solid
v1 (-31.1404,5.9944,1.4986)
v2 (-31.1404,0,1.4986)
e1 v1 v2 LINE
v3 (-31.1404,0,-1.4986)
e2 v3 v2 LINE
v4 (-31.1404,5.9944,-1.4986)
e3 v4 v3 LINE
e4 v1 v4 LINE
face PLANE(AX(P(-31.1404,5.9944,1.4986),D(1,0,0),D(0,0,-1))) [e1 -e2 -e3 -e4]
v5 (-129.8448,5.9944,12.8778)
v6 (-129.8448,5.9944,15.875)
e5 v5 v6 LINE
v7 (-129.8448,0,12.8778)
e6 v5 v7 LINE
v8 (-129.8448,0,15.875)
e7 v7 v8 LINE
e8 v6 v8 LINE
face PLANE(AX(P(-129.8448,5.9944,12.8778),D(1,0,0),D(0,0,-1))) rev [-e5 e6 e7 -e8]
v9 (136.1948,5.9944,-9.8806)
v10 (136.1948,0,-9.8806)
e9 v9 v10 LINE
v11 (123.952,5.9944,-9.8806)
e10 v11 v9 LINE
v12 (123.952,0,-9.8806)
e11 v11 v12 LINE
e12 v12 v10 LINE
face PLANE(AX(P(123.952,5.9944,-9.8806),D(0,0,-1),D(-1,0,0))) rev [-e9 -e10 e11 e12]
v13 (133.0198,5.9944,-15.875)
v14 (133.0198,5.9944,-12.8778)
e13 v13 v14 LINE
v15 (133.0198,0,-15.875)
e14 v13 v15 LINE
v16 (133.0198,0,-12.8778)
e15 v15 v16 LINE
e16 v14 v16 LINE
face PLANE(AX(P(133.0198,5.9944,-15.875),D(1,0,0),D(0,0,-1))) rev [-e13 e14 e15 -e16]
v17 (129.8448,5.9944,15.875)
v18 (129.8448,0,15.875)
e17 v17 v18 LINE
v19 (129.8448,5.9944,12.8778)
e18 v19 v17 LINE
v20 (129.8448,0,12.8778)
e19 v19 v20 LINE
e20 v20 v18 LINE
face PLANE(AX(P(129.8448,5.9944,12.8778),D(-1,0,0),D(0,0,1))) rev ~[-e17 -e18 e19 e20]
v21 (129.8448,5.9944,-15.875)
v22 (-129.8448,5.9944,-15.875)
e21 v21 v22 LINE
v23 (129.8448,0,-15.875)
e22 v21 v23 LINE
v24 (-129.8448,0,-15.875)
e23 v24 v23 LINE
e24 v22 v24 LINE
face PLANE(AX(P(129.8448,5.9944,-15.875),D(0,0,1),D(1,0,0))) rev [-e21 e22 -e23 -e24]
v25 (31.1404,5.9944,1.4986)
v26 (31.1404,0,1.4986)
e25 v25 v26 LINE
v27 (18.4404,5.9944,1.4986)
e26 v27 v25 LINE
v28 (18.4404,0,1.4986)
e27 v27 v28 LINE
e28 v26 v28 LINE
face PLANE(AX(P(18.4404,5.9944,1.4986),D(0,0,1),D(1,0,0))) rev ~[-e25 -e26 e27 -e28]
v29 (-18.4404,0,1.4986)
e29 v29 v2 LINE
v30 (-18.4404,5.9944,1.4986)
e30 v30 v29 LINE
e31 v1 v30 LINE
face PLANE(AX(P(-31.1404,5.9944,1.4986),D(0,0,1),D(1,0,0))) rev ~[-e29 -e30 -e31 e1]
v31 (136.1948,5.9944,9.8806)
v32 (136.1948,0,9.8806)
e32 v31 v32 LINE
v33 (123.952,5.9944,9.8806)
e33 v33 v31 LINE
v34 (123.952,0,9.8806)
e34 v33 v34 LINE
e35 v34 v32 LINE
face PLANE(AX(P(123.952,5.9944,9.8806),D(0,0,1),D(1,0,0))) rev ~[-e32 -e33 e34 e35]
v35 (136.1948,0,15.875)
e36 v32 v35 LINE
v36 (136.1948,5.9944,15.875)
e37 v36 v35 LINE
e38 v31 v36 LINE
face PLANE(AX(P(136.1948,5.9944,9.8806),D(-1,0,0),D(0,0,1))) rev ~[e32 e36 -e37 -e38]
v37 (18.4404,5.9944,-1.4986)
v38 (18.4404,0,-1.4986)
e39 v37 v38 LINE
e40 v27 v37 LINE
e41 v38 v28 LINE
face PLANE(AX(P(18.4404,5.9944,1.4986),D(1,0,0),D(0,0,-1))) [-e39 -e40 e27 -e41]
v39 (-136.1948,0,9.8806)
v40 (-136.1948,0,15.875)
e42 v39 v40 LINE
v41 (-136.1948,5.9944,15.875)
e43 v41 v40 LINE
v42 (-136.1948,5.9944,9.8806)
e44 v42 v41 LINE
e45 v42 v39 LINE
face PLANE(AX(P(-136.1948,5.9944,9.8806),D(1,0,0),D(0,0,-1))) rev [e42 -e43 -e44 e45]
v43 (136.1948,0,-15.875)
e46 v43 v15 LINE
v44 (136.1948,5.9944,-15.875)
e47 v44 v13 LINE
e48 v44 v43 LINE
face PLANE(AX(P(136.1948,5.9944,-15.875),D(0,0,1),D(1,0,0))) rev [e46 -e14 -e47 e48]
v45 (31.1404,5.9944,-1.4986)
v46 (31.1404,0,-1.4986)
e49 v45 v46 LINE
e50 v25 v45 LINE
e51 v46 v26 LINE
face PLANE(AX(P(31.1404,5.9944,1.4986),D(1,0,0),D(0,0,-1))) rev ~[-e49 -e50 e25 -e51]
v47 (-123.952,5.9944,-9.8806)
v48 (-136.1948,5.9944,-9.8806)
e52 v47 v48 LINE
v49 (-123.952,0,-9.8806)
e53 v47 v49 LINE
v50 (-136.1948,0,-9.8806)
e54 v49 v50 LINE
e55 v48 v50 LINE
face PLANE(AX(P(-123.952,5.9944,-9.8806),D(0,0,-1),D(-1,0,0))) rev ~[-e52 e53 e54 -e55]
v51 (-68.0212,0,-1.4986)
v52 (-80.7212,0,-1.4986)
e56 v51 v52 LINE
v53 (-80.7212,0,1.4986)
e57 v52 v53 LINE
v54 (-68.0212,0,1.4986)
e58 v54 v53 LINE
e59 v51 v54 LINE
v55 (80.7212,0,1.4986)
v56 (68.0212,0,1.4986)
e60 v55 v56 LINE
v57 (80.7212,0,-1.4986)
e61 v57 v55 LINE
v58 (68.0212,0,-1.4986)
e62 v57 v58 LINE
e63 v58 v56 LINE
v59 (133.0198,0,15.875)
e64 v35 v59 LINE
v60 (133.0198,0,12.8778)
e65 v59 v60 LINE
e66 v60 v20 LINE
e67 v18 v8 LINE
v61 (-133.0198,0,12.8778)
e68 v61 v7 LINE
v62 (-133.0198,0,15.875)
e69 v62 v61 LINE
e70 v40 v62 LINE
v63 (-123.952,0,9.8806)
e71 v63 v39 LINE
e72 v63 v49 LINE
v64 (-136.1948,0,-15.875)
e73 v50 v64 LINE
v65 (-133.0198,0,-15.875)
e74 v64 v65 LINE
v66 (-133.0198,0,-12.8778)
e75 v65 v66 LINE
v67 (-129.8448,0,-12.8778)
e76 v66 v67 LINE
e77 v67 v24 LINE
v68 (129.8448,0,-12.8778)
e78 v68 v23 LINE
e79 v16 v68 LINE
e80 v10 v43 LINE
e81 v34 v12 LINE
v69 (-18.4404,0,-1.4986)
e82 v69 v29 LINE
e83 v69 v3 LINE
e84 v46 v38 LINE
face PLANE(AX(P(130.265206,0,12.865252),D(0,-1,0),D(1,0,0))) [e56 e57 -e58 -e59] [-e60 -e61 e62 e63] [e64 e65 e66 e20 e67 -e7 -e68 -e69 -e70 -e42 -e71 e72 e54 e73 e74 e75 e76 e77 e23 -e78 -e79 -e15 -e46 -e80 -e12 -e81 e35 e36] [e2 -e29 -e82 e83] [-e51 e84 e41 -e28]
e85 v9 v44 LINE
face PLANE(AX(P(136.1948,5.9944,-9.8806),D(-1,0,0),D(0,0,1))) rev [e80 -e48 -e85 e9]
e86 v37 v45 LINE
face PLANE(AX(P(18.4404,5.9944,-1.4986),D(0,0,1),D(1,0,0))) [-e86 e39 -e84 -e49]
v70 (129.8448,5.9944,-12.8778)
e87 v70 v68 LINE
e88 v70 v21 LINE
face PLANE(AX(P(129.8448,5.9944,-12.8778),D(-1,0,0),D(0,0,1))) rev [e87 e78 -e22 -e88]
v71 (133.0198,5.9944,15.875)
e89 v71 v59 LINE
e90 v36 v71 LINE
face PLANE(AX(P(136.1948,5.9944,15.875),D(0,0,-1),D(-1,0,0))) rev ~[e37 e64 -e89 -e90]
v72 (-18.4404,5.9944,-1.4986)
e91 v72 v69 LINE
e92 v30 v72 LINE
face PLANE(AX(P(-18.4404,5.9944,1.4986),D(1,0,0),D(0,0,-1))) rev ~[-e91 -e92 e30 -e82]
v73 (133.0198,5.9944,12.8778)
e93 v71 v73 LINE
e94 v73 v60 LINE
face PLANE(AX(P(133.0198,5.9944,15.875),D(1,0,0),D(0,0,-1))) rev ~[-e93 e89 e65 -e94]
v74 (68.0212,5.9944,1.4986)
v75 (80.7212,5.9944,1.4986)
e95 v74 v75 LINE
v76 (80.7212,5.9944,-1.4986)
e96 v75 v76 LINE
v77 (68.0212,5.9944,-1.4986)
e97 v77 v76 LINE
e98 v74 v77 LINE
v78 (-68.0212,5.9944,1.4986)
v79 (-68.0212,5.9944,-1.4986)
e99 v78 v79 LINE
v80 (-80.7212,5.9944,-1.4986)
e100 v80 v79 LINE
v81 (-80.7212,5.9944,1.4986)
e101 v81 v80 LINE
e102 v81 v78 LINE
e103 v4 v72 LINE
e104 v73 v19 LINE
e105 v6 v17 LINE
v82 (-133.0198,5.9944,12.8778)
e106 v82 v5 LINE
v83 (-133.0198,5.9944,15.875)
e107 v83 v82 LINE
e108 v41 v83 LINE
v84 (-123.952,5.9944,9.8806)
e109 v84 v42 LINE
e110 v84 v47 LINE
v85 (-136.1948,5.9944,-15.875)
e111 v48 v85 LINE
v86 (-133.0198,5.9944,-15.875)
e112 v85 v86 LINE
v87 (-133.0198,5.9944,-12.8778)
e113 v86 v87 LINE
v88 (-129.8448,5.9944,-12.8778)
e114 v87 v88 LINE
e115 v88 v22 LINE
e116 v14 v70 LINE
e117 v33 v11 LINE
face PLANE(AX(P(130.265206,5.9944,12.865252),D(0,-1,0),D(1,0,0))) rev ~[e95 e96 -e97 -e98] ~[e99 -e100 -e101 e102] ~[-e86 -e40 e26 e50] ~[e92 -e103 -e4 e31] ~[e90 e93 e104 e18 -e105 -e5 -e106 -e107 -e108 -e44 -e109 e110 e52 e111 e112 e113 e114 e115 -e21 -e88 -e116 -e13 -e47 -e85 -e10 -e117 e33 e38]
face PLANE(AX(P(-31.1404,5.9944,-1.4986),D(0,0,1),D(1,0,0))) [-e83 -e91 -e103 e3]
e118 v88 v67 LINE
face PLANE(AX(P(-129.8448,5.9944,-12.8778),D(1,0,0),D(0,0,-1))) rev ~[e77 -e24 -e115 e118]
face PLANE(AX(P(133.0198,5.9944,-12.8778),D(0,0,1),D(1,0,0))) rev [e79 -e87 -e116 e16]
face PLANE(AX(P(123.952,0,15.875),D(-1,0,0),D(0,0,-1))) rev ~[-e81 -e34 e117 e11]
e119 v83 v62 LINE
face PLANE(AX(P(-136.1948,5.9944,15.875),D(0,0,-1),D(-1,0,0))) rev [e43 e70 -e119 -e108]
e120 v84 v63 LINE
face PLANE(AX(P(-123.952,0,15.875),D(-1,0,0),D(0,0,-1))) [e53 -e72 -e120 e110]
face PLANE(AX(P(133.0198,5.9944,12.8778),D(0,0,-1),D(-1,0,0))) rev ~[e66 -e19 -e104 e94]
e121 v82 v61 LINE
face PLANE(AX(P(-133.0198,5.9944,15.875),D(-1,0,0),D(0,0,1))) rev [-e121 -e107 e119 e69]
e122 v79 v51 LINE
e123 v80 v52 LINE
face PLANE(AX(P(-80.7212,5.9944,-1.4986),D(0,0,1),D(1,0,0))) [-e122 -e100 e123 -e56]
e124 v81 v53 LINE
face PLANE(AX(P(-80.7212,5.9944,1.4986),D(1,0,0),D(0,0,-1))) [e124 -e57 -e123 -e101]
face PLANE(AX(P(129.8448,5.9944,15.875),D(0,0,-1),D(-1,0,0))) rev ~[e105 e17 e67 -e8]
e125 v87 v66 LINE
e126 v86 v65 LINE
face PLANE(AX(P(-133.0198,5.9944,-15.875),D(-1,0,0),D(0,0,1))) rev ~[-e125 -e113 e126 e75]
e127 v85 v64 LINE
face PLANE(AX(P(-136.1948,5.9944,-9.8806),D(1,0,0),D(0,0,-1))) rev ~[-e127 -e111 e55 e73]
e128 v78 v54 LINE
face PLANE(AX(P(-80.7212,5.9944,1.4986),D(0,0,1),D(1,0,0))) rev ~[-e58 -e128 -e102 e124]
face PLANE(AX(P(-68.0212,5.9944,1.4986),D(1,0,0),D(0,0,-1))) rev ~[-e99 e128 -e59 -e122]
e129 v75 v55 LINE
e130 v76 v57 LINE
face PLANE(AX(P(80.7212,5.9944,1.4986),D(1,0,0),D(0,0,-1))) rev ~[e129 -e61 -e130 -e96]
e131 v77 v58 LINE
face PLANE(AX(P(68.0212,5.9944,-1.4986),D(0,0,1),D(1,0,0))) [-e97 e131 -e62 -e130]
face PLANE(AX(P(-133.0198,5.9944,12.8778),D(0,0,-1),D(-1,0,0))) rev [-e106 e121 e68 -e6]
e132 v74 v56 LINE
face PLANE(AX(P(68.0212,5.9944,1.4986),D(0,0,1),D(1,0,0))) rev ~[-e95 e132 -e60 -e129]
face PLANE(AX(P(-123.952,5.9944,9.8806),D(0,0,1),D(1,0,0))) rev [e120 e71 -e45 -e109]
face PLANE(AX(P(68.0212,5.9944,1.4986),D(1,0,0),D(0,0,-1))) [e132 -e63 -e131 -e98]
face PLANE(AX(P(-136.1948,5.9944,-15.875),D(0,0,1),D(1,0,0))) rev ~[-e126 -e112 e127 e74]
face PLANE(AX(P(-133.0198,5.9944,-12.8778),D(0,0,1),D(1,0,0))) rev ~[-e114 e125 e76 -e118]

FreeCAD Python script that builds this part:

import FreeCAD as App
import Part
import Sketcher

V = App.Vector
Q = App.Units.Quantity


def add_polygon(sketch, points):
    """Adds a closed chain of lines whose ends are joined by coincident constraints."""
    first, n = sketch.GeometryCount, len(points)
    for a, b in zip(points, points[1:] + points[:1]):
        sketch.addGeometry(Part.LineSegment(App.Vector(*a, 0), App.Vector(*b, 0)), False)
    for i in range(n):
        sketch.addConstraint(Sketcher.Constraint("Coincident", first + i, 2, first + (i + 1) % n, 1))

doc = App.newDocument("Part")
body = doc.addObject("PartDesign::Body", "Body")

# Sketch on XZ plane
sketch1 = body.newObject("Sketcher::SketchObject", "Sketch")
sketch1.AttachmentSupport = (doc.getObject("XZ_Plane"), [""])
sketch1.MapMode = "FlatFace"
add_polygon(sketch1, [(-123.952, -15.875), (-123.952, 15.875), (123.952, 15.875), (123.952, -15.875)])  # lines 0-3
sketch1.addConstraint(Sketcher.Constraint("Vertical", 0))
sketch1.addConstraint(Sketcher.Constraint("Horizontal", 1))
sketch1.addConstraint(Sketcher.Constraint("Vertical", 2))
sketch1.addConstraint(Sketcher.Constraint("Horizontal", 3))
sketch1.addConstraint(Sketcher.Constraint("Symmetric", 0, 2, 2, 2, -1, 1))
sketch1.addConstraint(Sketcher.Constraint("DistanceX", 1, 1, 1, 2, Q("9.76 in")))
sketch1.addConstraint(Sketcher.Constraint("DistanceY", 0, 1, 0, 2, Q("1.25 in")))
pad1 = body.newObject("PartDesign::Pad", "Pad")
pad1.Profile = sketch1
pad1.Length = Q("0.236 in")
pad1.Reversed = True

# Sketch on XZ plane
sketch2 = body.newObject("Sketcher::SketchObject", "Sketch001")
sketch2.AttachmentSupport = (doc.getObject("XZ_Plane"), [""])
sketch2.MapMode = "FlatFace"
sketch2.AttachmentOffset = App.Placement(V(0, 0, -0.236 * 25.4), App.Rotation())
add_polygon(sketch2, [(-136.1948, -9.8806), (-123.952, -9.8806), (-123.952, -15.875), (-129.8448, -15.875), (-129.8448, -12.8778), (-133.0198, -12.8778), (-133.0198, -15.875), (-136.1948, -15.875)])  # lines 0-7
sketch2.addConstraint(Sketcher.Constraint("Horizontal", 0))
sketch2.addConstraint(Sketcher.Constraint("Vertical", 1))
sketch2.addConstraint(Sketcher.Constraint("Horizontal", 2))
sketch2.addConstraint(Sketcher.Constraint("Vertical", 3))
sketch2.addConstraint(Sketcher.Constraint("Horizontal", 4))
sketch2.addConstraint(Sketcher.Constraint("Vertical", 5))
sketch2.addConstraint(Sketcher.Constraint("Horizontal", 6))
sketch2.addConstraint(Sketcher.Constraint("Vertical", 7))
sketch2.addConstraint(Sketcher.Constraint("Horizontal", 2, 2, 5, 2))
sketch2.addConstraint(Sketcher.Constraint("Equal", 4, 6))
sketch2.addConstraint(Sketcher.Constraint("DistanceX", 0, 1, 0, 2, Q("0.482 in")))
sketch2.addConstraint(Sketcher.Constraint("DistanceX", 2, 2, 2, 1, Q("0.232 in")))
sketch2.addConstraint(Sketcher.Constraint("DistanceY", 1, 2, 1, 1, Q("0.236 in")))
sketch2.addConstraint(Sketcher.Constraint("DistanceY", 3, 1, 3, 2, Q("0.118 in")))
sketch2.addConstraint(Sketcher.Constraint("DistanceX", 0, 2, -1, 1, Q("4.88 in")))
sketch2.addConstraint(Sketcher.Constraint("DistanceY", 0, 2, -1, 1, Q("0.389 in")))
pad2 = body.newObject("PartDesign::Pad", "Pad001")
pad2.Profile = sketch2
pad2.Length = Q("0.236 in")
doc.recompute()

mirrored = body.newObject("PartDesign::Mirrored", "Mirrored")
mirrored.Originals = [pad2]
mirrored.MirrorPlane = (doc.getObject("XY_Plane"), [""])
body.Tip = mirrored
doc.recompute()

mirrored2 = body.newObject("PartDesign::Mirrored", "Mirrored001")
mirrored2.Originals = [pad2]
mirrored2.MirrorPlane = (doc.getObject("YZ_Plane"), [""])
body.Tip = mirrored2

# Sketch on XZ plane
sketch3 = body.newObject("Sketcher::SketchObject", "Sketch002")
sketch3.AttachmentSupport = (doc.getObject("XZ_Plane"), [""])
sketch3.MapMode = "FlatFace"
sketch3.AttachmentOffset = App.Placement(V(0, 0, -0.236 * 25.4), App.Rotation())
add_polygon(sketch3, [(136.1948, 9.8806), (123.952, 9.8806), (123.952, 15.875), (129.8448, 15.875), (129.8448, 12.8778), (133.0198, 12.8778), (133.0198, 15.875), (136.1948, 15.875)])  # lines 0-7
sketch3.addConstraint(Sketcher.Constraint("Horizontal", 0))
sketch3.addConstraint(Sketcher.Constraint("Vertical", 1))
sketch3.addConstraint(Sketcher.Constraint("Horizontal", 2))
sketch3.addConstraint(Sketcher.Constraint("Vertical", 3))
sketch3.addConstraint(Sketcher.Constraint("Horizontal", 4))
sketch3.addConstraint(Sketcher.Constraint("Vertical", 5))
sketch3.addConstraint(Sketcher.Constraint("Horizontal", 6))
sketch3.addConstraint(Sketcher.Constraint("Vertical", 7))
sketch3.addConstraint(Sketcher.Constraint("Horizontal", 2, 2, 5, 2))
sketch3.addConstraint(Sketcher.Constraint("Equal", 4, 6))
sketch3.addConstraint(Sketcher.Constraint("DistanceX", 0, 2, 0, 1, Q("0.482 in")))
sketch3.addConstraint(Sketcher.Constraint("DistanceX", 2, 1, 2, 2, Q("0.232 in")))
sketch3.addConstraint(Sketcher.Constraint("DistanceY", 1, 1, 1, 2, Q("0.236 in")))
sketch3.addConstraint(Sketcher.Constraint("DistanceY", 3, 2, 3, 1, Q("0.118 in")))
sketch3.addConstraint(Sketcher.Constraint("DistanceX", -1, 1, 0, 2, Q("4.88 in")))
sketch3.addConstraint(Sketcher.Constraint("DistanceY", -1, 1, 0, 2, Q("0.389 in")))
pad3 = body.newObject("PartDesign::Pad", "Pad002")
pad3.Profile = sketch3
pad3.Length = Q("0.236 in")

# Sketch on XZ plane
sketch4 = body.newObject("Sketcher::SketchObject", "Sketch003")
sketch4.AttachmentSupport = (doc.getObject("XZ_Plane"), [""])
sketch4.MapMode = "FlatFace"
sketch4.AttachmentOffset = App.Placement(V(0, 0, -0.236 * 25.4), App.Rotation())
add_polygon(sketch4, [(-80.7212, -1.4986), (-80.7212, 1.4986), (-68.0212, 1.4986), (-68.0212, -1.4986)])  # lines 0-3
add_polygon(sketch4, [(-31.1404, -1.4986), (-31.1404, 1.4986), (-18.4404, 1.4986), (-18.4404, -1.4986)])  # lines 4-7
add_polygon(sketch4, [(18.4404, -1.4986), (18.4404, 1.4986), (31.1404, 1.4986), (31.1404, -1.4986)])  # lines 8-11
add_polygon(sketch4, [(68.0212, -1.4986), (68.0212, 1.4986), (80.7212, 1.4986), (80.7212, -1.4986)])  # lines 12-15
sketch4.addConstraint(Sketcher.Constraint("Vertical", 0))
sketch4.addConstraint(Sketcher.Constraint("Horizontal", 1))
sketch4.addConstraint(Sketcher.Constraint("Vertical", 2))
sketch4.addConstraint(Sketcher.Constraint("Horizontal", 3))
sketch4.addConstraint(Sketcher.Constraint("Vertical", 4))
sketch4.addConstraint(Sketcher.Constraint("Horizontal", 5))
sketch4.addConstraint(Sketcher.Constraint("Vertical", 6))
sketch4.addConstraint(Sketcher.Constraint("Horizontal", 7))
sketch4.addConstraint(Sketcher.Constraint("Vertical", 8))
sketch4.addConstraint(Sketcher.Constraint("Horizontal", 9))
sketch4.addConstraint(Sketcher.Constraint("Vertical", 10))
sketch4.addConstraint(Sketcher.Constraint("Horizontal", 11))
sketch4.addConstraint(Sketcher.Constraint("Vertical", 12))
sketch4.addConstraint(Sketcher.Constraint("Horizontal", 13))
sketch4.addConstraint(Sketcher.Constraint("Vertical", 14))
sketch4.addConstraint(Sketcher.Constraint("Horizontal", 15))
sketch4.addConstraint(Sketcher.Constraint("Symmetric", 6, 2, 8, 2, -1, 1))
sketch4.addConstraint(Sketcher.Constraint("Symmetric", 4, 2, 10, 2, -1, 1))
sketch4.addConstraint(Sketcher.Constraint("Symmetric", 2, 2, 12, 2, -1, 1))
sketch4.addConstraint(Sketcher.Constraint("Symmetric", 0, 2, 14, 2, -1, 1))
sketch4.addConstraint(Sketcher.Constraint("Horizontal", 1, 2, 4, 2))
sketch4.addConstraint(Sketcher.Constraint("Horizontal", 3, 2, 6, 2))
sketch4.addConstraint(Sketcher.Constraint("Horizontal", 5, 2, 8, 2))
sketch4.addConstraint(Sketcher.Constraint("Equal", 3, 5))
sketch4.addConstraint(Sketcher.Constraint("DistanceX", 1, 1, 1, 2, Q("0.5 in")))
sketch4.addConstraint(Sketcher.Constraint("DistanceY", 0, 1, 0, 2, Q("0.118 in")))
sketch4.addConstraint(Sketcher.Constraint("DistanceX", 0, 2, -1, 1, Q("3.178 in")))
sketch4.addConstraint(Sketcher.Constraint("DistanceX", 4, 2, -1, 1, Q("1.226 in")))
pocket1 = body.newObject("PartDesign::Pocket", "Pocket")
pocket1.Profile = sketch4
pocket1.Type = "ThroughAll"
pocket1.Reversed = True

doc.recompute()
